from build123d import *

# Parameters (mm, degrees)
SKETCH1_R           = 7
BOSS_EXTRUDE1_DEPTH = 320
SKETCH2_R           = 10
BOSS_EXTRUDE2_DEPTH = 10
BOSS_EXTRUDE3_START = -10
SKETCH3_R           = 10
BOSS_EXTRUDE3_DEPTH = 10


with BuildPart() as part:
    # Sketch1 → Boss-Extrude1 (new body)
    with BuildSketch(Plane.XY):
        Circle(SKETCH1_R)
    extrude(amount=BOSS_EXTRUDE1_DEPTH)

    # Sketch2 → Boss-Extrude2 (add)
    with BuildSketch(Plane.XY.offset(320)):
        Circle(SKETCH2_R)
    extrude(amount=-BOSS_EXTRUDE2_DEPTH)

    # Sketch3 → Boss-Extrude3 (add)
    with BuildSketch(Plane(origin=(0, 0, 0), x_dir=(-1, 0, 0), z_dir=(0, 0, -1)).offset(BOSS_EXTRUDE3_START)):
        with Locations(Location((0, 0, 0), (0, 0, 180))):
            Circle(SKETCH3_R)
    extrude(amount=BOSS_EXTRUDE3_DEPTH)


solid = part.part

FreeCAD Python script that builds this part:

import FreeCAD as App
import Part
import Sketcher
from FreeCAD import Vector

doc = App.newDocument("Part")
params = doc.addObject("Spreadsheet::Sheet", "Params")
for row, (alias, value) in enumerate([
    ("sketch1_diameter", "14 mm"),
    ("pad1_length", "320 mm"),
    ("sketch2_diameter", "20 mm"),
    ("pad2_length", "10 mm"),
    ("sketch3_diameter", "20 mm"),
    ("pad3_length", "10 mm"),
], start=1):
    params.set(f"A{row}", alias)
    params.set(f"B{row}", "=" + value)
    params.setAlias(f"B{row}", alias)

body = doc.addObject("PartDesign::Body", "Body")

# Sketch on XY plane
sketch1 = body.newObject("Sketcher::SketchObject", "Sketch")
sketch1.AttachmentSupport = (doc.getObject("XY_Plane"), [""])
sketch1.MapMode = "FlatFace"
sketch1.addGeometry(Part.Circle(Vector(0, 0, 0), Vector(0, 0, 1), 7), False)
sketch1.addConstraint(Sketcher.Constraint("Coincident", 0, 3, -1, 1))
sketch1.addConstraint(Sketcher.Constraint("Diameter", 0, 14.0))
sketch1.setExpression("Constraints[1]", "Params.sketch1_diameter")
pad1 = body.newObject("PartDesign::Pad", "Pad")
pad1.Profile = sketch1
pad1.setExpression("Length", "Params.pad1_length")

# Sketch on XY plane
sketch2 = body.newObject("Sketcher::SketchObject", "Sketch001")
sketch2.AttachmentSupport = (doc.getObject("XY_Plane"), [""])
sketch2.MapMode = "FlatFace"
sketch2.AttachmentOffset = App.Placement(Vector(0, 0, 320), App.Rotation())
sketch2.addGeometry(Part.Circle(Vector(0, 0, 0), Vector(0, 0, 1), 10), False)
sketch2.addConstraint(Sketcher.Constraint("Coincident", 0, 3, -1, 1))
sketch2.addConstraint(Sketcher.Constraint("Diameter", 0, 20.0))
sketch2.setExpression("Constraints[1]", "Params.sketch2_diameter")
pad2 = body.newObject("PartDesign::Pad", "Pad001")
pad2.Profile = sketch2
pad2.setExpression("Length", "Params.pad2_length")
pad2.Reversed = True

# Sketch on XY plane
sketch3 = body.newObject("Sketcher::SketchObject", "Sketch002")
sketch3.AttachmentSupport = (doc.getObject("XY_Plane"), [""])
sketch3.MapMode = "FlatFace"
sketch3.AttachmentOffset = App.Placement(Vector(0, 0, 10), App.Rotation())
sketch3.addGeometry(Part.Circle(Vector(0, 0, 0), Vector(0, 0, 1), 10), False)
sketch3.addConstraint(Sketcher.Constraint("Coincident", 0, 3, -1, 1))
sketch3.addConstraint(Sketcher.Constraint("Diameter", 0, 20.0))
sketch3.setExpression("Constraints[1]", "Params.sketch3_diameter")
pad3 = body.newObject("PartDesign::Pad", "Pad002")
pad3.Profile = sketch3
pad3.setExpression("Length", "Params.pad3_length")
pad3.Reversed = True

doc.recompute()
